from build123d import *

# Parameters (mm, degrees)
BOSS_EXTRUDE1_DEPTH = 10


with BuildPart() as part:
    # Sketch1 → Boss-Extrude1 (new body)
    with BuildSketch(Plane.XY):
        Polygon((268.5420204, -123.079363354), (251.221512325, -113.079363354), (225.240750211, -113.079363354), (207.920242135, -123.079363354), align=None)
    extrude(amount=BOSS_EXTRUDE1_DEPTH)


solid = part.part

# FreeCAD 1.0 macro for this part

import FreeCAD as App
import Part
import Sketcher

V = App.Vector
Q = App.Units.Quantity


def add_polygon(sketch, points):
    """Adds a closed chain of lines whose ends are joined by coincident constraints."""
    first, n = sketch.GeometryCount, len(points)
    for a, b in zip(points, points[1:] + points[:1]):
        sketch.addGeometry(Part.LineSegment(App.Vector(*a, 0), App.Vector(*b, 0)), False)
    for i in range(n):
        sketch.addConstraint(Sketcher.Constraint("Coincident", first + i, 2, first + (i + 1) % n, 1))

doc = App.newDocument("Part")
params = doc.addObject("Spreadsheet::Sheet", "Params")
for row, (alias, value) in enumerate([
    ("sketch1_length", "20 mm"),
    ("pad1_length", "10 mm"),
], start=1):
    params.set(f"A{row}", alias)
    params.set(f"B{row}", "=" + value)
    params.setAlias(f"B{row}", alias)

body = doc.addObject("PartDesign::Body", "Body")

sketch1 = body.newObject("Sketcher::SketchObject", "Sketch")
sketch1.AttachmentSupport = (doc.getObject("XY_Plane"), [""])
sketch1.MapMode = "FlatFace"
add_polygon(sketch1, [(269, -123), (251, -113), (225, -113), (208, -123)])
sketch1.addConstraint(Sketcher.Constraint("Horizontal", 1))
sketch1.addConstraint(Sketcher.Constraint("Horizontal", 3))
sketch1.addConstraint(Sketcher.Constraint("Equal", 0, 2))
sketch1.addConstraint(Sketcher.Constraint("Angle", 0, Q("150 deg")))
sketch1.addConstraint(Sketcher.Constraint("Distance", 0, 20.0))
sketch1.addConstraint(Sketcher.Constraint("DistanceX", 3, 1, 3, 2, 60.621778))
sketch1.addConstraint(Sketcher.Constraint("DistanceX", -1, 1, 1, 2, 225.24075))
sketch1.addConstraint(Sketcher.Constraint("DistanceY", 0, 2, -1, 1, 113.079363))
sketch1.setExpression("Constraints[8]", "Params.sketch1_length")
pad1 = body.newObject("PartDesign::Pad", "Pad")
pad1.Profile = sketch1
pad1.setExpression("Length", "Params.pad1_length")

doc.recompute()
